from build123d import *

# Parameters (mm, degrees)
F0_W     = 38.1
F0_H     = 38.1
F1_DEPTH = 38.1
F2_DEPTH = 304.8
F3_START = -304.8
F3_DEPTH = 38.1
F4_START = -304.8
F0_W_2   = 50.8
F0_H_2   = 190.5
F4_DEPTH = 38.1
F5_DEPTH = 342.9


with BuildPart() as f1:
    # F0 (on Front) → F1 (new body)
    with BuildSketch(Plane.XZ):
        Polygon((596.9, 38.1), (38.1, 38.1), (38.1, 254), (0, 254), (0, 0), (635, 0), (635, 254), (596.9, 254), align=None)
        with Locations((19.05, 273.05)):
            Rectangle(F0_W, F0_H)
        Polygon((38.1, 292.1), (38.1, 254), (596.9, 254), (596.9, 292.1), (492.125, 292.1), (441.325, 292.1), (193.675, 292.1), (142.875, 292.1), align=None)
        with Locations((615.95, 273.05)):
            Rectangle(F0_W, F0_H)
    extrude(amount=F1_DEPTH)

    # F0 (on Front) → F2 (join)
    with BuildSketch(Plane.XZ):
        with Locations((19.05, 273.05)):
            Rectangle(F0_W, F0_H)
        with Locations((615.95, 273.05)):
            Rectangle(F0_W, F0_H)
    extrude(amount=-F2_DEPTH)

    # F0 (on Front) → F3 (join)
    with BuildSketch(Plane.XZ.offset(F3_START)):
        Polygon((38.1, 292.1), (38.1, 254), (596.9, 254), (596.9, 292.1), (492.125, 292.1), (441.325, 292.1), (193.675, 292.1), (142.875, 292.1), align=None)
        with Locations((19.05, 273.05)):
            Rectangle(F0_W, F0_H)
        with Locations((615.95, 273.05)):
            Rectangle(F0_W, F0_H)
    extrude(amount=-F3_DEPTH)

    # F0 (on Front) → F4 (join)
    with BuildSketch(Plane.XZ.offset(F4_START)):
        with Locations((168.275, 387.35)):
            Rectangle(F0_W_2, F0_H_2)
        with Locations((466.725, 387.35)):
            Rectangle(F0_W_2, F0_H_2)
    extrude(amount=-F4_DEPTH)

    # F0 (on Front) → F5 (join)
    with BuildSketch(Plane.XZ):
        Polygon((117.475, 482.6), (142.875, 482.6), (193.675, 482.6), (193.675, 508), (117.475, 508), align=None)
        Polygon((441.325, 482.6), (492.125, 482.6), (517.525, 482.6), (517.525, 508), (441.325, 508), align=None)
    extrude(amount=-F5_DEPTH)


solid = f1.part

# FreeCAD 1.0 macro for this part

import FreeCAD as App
import Part
import Sketcher
from FreeCAD import Vector
Q = App.Units.Quantity

doc = App.newDocument("Part")
body = doc.addObject("PartDesign::Body", "Body")

sketch1 = body.newObject("Sketcher::SketchObject", "Sketch")
sketch1.AttachmentSupport = (doc.getObject("XZ_Plane"), [""])
sketch1.MapMode = "FlatFace"
sketch1.addGeometry([
    Part.LineSegment(Vector(635, 0, 0), Vector(635, 292, 0)),
    Part.LineSegment(Vector(635, 292, 0), Vector(0, 292, 0)),
    Part.LineSegment(Vector(0, 292, 0), Vector(0, 0, 0)),
    Part.LineSegment(Vector(0, 0, 0), Vector(635, 0, 0)),
    Part.LineSegment(Vector(38, 254, 0), Vector(597, 254, 0)),
    Part.LineSegment(Vector(597, 254, 0), Vector(597, 38, 0)),
    Part.LineSegment(Vector(597, 38, 0), Vector(38, 38, 0)),
    Part.LineSegment(Vector(38, 38, 0), Vector(38, 254, 0)),
], False)
sketch1.addConstraint([
    Sketcher.Constraint("Coincident", 0, 2, 1, 1),
    Sketcher.Constraint("Coincident", 1, 2, 2, 1),
    Sketcher.Constraint("Coincident", 2, 2, 3, 1),
    Sketcher.Constraint("Coincident", 3, 2, 0, 1),
    Sketcher.Constraint("Coincident", 4, 2, 5, 1),
    Sketcher.Constraint("Coincident", 5, 2, 6, 1),
    Sketcher.Constraint("Coincident", 6, 2, 7, 1),
    Sketcher.Constraint("Coincident", 7, 2, 4, 1),
    Sketcher.Constraint("Vertical", 0),
    Sketcher.Constraint("Horizontal", 1),
    Sketcher.Constraint("Vertical", 2),
    Sketcher.Constraint("Horizontal", 3),
    Sketcher.Constraint("Horizontal", 4),
    Sketcher.Constraint("Vertical", 5),
    Sketcher.Constraint("Horizontal", 6),
    Sketcher.Constraint("Vertical", 7),
    Sketcher.Constraint("Coincident", 2, 2, -1, 1),
    Sketcher.Constraint("DistanceX", 1, 2, 1, 1, Q("25 in")),
    Sketcher.Constraint("DistanceX", 4, 1, 4, 2, Q("22 in")),
    Sketcher.Constraint("DistanceY", 0, 1, 0, 2, Q("11.5 in")),
    Sketcher.Constraint("DistanceY", 5, 2, 5, 1, Q("8.5 in")),
    Sketcher.Constraint("DistanceY", -1, 1, 4, 2, Q("10 in")),
    Sketcher.Constraint("DistanceX", -1, 1, 4, 2, Q("23.5 in")),
])
pad1 = body.newObject("PartDesign::Pad", "Pad")
pad1.Profile = sketch1
pad1.Length = Q("1.5 in")

sketch2 = body.newObject("Sketcher::SketchObject", "Sketch001")
sketch2.AttachmentSupport = (doc.getObject("XZ_Plane"), [""])
sketch2.MapMode = "FlatFace"
sketch2.addGeometry([
    Part.LineSegment(Vector(0, 292, 0), Vector(0, 254, 0)),
    Part.LineSegment(Vector(0, 254, 0), Vector(38, 254, 0)),
    Part.LineSegment(Vector(38, 254, 0), Vector(38, 292, 0)),
    Part.LineSegment(Vector(38, 292, 0), Vector(0, 292, 0)),
    Part.LineSegment(Vector(597, 292, 0), Vector(597, 254, 0)),
    Part.LineSegment(Vector(597, 254, 0), Vector(635, 254, 0)),
    Part.LineSegment(Vector(635, 254, 0), Vector(635, 292, 0)),
    Part.LineSegment(Vector(635, 292, 0), Vector(597, 292, 0)),
], False)
sketch2.addConstraint([
    Sketcher.Constraint("Coincident", 0, 2, 1, 1),
    Sketcher.Constraint("Coincident", 1, 2, 2, 1),
    Sketcher.Constraint("Coincident", 2, 2, 3, 1),
    Sketcher.Constraint("Coincident", 3, 2, 0, 1),
    Sketcher.Constraint("Coincident", 4, 2, 5, 1),
    Sketcher.Constraint("Coincident", 5, 2, 6, 1),
    Sketcher.Constraint("Coincident", 6, 2, 7, 1),
    Sketcher.Constraint("Coincident", 7, 2, 4, 1),
    Sketcher.Constraint("Vertical", 0),
    Sketcher.Constraint("Horizontal", 1),
    Sketcher.Constraint("Vertical", 2),
    Sketcher.Constraint("Horizontal", 3),
    Sketcher.Constraint("Vertical", 4),
    Sketcher.Constraint("Horizontal", 5),
    Sketcher.Constraint("Vertical", 6),
    Sketcher.Constraint("Horizontal", 7),
    Sketcher.Constraint("PointOnObject", 0, 2, -2),
    Sketcher.Constraint("Horizontal", 1, 2, 4, 2),
    Sketcher.Constraint("Horizontal", 3, 2, 6, 2),
    Sketcher.Constraint("Equal", 3, 5),
    Sketcher.Constraint("Equal", 7, 0),
    Sketcher.Constraint("DistanceX", 1, 1, 1, 2, Q("1.5 in")),
    Sketcher.Constraint("DistanceY", -1, 1, 0, 2, Q("10 in")),
    Sketcher.Constraint("DistanceX", -1, 1, 5, 2, Q("25 in")),
])
pad2 = body.newObject("PartDesign::Pad", "Pad001")
pad2.Profile = sketch2
pad2.Length = Q("12 in")
pad2.Reversed = True

sketch3 = body.newObject("Sketcher::SketchObject", "Sketch002")
sketch3.AttachmentSupport = (doc.getObject("XZ_Plane"), [""])
sketch3.MapMode = "FlatFace"
sketch3.AttachmentOffset = App.Placement(Vector(0, 0, -12 * 25.4), App.Rotation())
sketch3.addGeometry([
    Part.LineSegment(Vector(0, 292, 0), Vector(0, 254, 0)),
    Part.LineSegment(Vector(0, 254, 0), Vector(635, 254, 0)),
    Part.LineSegment(Vector(635, 254, 0), Vector(635, 292, 0)),
    Part.LineSegment(Vector(635, 292, 0), Vector(0, 292, 0)),
], False)
sketch3.addConstraint([
    Sketcher.Constraint("Coincident", 0, 2, 1, 1),
    Sketcher.Constraint("Coincident", 1, 2, 2, 1),
    Sketcher.Constraint("Coincident", 2, 2, 3, 1),
    Sketcher.Constraint("Coincident", 3, 2, 0, 1),
    Sketcher.Constraint("Vertical", 0),
    Sketcher.Constraint("Horizontal", 1),
    Sketcher.Constraint("Vertical", 2),
    Sketcher.Constraint("Horizontal", 3),
    Sketcher.Constraint("PointOnObject", 0, 2, -2),
    Sketcher.Constraint("DistanceX", 1, 1, 1, 2, Q("25 in")),
    Sketcher.Constraint("DistanceY", 0, 2, 0, 1, Q("1.5 in")),
    Sketcher.Constraint("DistanceY", -1, 1, 0, 2, Q("10 in")),
])
pad3 = body.newObject("PartDesign::Pad", "Pad002")
pad3.Profile = sketch3
pad3.Length = Q("1.5 in")
pad3.Reversed = True

sketch4 = body.newObject("Sketcher::SketchObject", "Sketch003")
sketch4.AttachmentSupport = (doc.getObject("XZ_Plane"), [""])
sketch4.MapMode = "FlatFace"
sketch4.AttachmentOffset = App.Placement(Vector(0, 0, -12 * 25.4), App.Rotation())
sketch4.addGeometry([
    Part.LineSegment(Vector(143, 483, 0), Vector(143, 292, 0)),
    Part.LineSegment(Vector(143, 292, 0), Vector(194, 292, 0)),
    Part.LineSegment(Vector(194, 292, 0), Vector(194, 483, 0)),
    Part.LineSegment(Vector(194, 483, 0), Vector(143, 483, 0)),
    Part.LineSegment(Vector(441, 483, 0), Vector(441, 292, 0)),
    Part.LineSegment(Vector(441, 292, 0), Vector(492, 292, 0)),
    Part.LineSegment(Vector(492, 292, 0), Vector(492, 483, 0)),
    Part.LineSegment(Vector(492, 483, 0), Vector(441, 483, 0)),
], False)
sketch4.addConstraint([
    Sketcher.Constraint("Coincident", 0, 2, 1, 1),
    Sketcher.Constraint("Coincident", 1, 2, 2, 1),
    Sketcher.Constraint("Coincident", 2, 2, 3, 1),
    Sketcher.Constraint("Coincident", 3, 2, 0, 1),
    Sketcher.Constraint("Coincident", 4, 2, 5, 1),
    Sketcher.Constraint("Coincident", 5, 2, 6, 1),
    Sketcher.Constraint("Coincident", 6, 2, 7, 1),
    Sketcher.Constraint("Coincident", 7, 2, 4, 1),
    Sketcher.Constraint("Vertical", 0),
    Sketcher.Constraint("Horizontal", 1),
    Sketcher.Constraint("Vertical", 2),
    Sketcher.Constraint("Horizontal", 3),
    Sketcher.Constraint("Vertical", 4),
    Sketcher.Constraint("Horizontal", 5),
    Sketcher.Constraint("Vertical", 6),
    Sketcher.Constraint("Horizontal", 7),
    Sketcher.Constraint("Horizontal", 1, 2, 4, 2),
    Sketcher.Constraint("Horizontal", 3, 2, 6, 2),
    Sketcher.Constraint("Equal", 3, 5),
    Sketcher.Constraint("DistanceX", 1, 1, 1, 2, Q("2 in")),
    Sketcher.Constraint("DistanceY", 0, 2, 0, 1, Q("7.5 in")),
    Sketcher.Constraint("DistanceY", -1, 1, 2, 2, Q("19 in")),
    Sketcher.Constraint("DistanceX", 1, 2, 4, 2, Q("9.75 in")),
    Sketcher.Constraint("DistanceX", -1, 1, 0, 2, Q("5.625 in")),
])
pad4 = body.newObject("PartDesign::Pad", "Pad003")
pad4.Profile = sketch4
pad4.Length = Q("1.5 in")
pad4.Reversed = True

sketch5 = body.newObject("Sketcher::SketchObject", "Sketch004")
sketch5.AttachmentSupport = (doc.getObject("XZ_Plane"), [""])
sketch5.MapMode = "FlatFace"
sketch5.addGeometry([
    Part.LineSegment(Vector(117, 483, 0), Vector(194, 483, 0)),
    Part.LineSegment(Vector(194, 483, 0), Vector(194, 508, 0)),
    Part.LineSegment(Vector(194, 508, 0), Vector(117, 508, 0)),
    Part.LineSegment(Vector(117, 508, 0), Vector(117, 483, 0)),
    Part.LineSegment(Vector(441, 483, 0), Vector(518, 483, 0)),
    Part.LineSegment(Vector(518, 483, 0), Vector(518, 508, 0)),
    Part.LineSegment(Vector(518, 508, 0), Vector(441, 508, 0)),
    Part.LineSegment(Vector(441, 508, 0), Vector(441, 483, 0)),
], False)
sketch5.addConstraint([
    Sketcher.Constraint("Coincident", 0, 2, 1, 1),
    Sketcher.Constraint("Coincident", 1, 2, 2, 1),
    Sketcher.Constraint("Coincident", 2, 2, 3, 1),
    Sketcher.Constraint("Coincident", 3, 2, 0, 1),
    Sketcher.Constraint("Coincident", 4, 2, 5, 1),
    Sketcher.Constraint("Coincident", 5, 2, 6, 1),
    Sketcher.Constraint("Coincident", 6, 2, 7, 1),
    Sketcher.Constraint("Coincident", 7, 2, 4, 1),
    Sketcher.Constraint("Horizontal", 0),
    Sketcher.Constraint("Vertical", 1),
    Sketcher.Constraint("Horizontal", 2),
    Sketcher.Constraint("Vertical", 3),
    Sketcher.Constraint("Horizontal", 4),
    Sketcher.Constraint("Vertical", 5),
    Sketcher.Constraint("Horizontal", 6),
    Sketcher.Constraint("Vertical", 7),
    Sketcher.Constraint("Horizontal", 3, 2, 4, 2),
    Sketcher.Constraint("Horizontal", 2, 2, 5, 2),
    Sketcher.Constraint("Equal", 2, 4),
    Sketcher.Constraint("DistanceX", 0, 1, 0, 2, Q("3 in")),
    Sketcher.Constraint("DistanceY", 1, 1, 1, 2, Q("1 in")),
    Sketcher.Constraint("DistanceY", -1, 1, 0, 2, Q("19 in")),
    Sketcher.Constraint("DistanceX", 0, 2, 4, 2, Q("12.75 in")),
    Sketcher.Constraint("DistanceX", -1, 1, 0, 2, Q("7.625 in")),
])
pad5 = body.newObject("PartDesign::Pad", "Pad004")
pad5.Profile = sketch5
pad5.Length = Q("13.5 in")
pad5.Reversed = True

doc.recompute()
